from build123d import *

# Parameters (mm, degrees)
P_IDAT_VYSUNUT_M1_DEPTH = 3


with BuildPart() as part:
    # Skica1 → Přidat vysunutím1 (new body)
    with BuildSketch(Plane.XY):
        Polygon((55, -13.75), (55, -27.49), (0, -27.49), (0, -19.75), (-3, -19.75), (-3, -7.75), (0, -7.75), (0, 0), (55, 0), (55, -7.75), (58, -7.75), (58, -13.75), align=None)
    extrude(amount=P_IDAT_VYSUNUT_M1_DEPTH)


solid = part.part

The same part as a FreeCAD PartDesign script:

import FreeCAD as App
import Part
import Sketcher

V = App.Vector


def add_polygon(sketch, points):
    """Adds a closed chain of lines whose ends are joined by coincident constraints."""
    first, n = sketch.GeometryCount, len(points)
    for a, b in zip(points, points[1:] + points[:1]):
        sketch.addGeometry(Part.LineSegment(App.Vector(*a, 0), App.Vector(*b, 0)), False)
    for i in range(n):
        sketch.addConstraint(Sketcher.Constraint("Coincident", first + i, 2, first + (i + 1) % n, 1))

doc = App.newDocument("Part")
params = doc.addObject("Spreadsheet::Sheet", "Params")
for row, (alias, value) in enumerate([
    ("sketch1_width", "3 mm"),
    ("sketch1_width2", "55 mm"),
    ("sketch1_height", "6 mm"),
    ("sketch1_height2", "12 mm"),
    ("sketch1_height3", "13.74 mm"),
    ("pad1_length", "3 mm"),
], start=1):
    params.set(f"A{row}", alias)
    params.set(f"B{row}", "=" + value)
    params.setAlias(f"B{row}", alias)

body = doc.addObject("PartDesign::Body", "Body")

# Sketch on XY plane
sketch1 = body.newObject("Sketcher::SketchObject", "Sketch")
sketch1.AttachmentSupport = (doc.getObject("XY_Plane"), [""])
sketch1.MapMode = "FlatFace"
add_polygon(sketch1, [(55, -27.5), (55, -13.8), (58, -13.8), (58, -7.8), (55, -7.8), (55, 0), (0, 0), (0, -7.8), (-3, -7.8), (-3, -19.8), (0, -19.8), (0, -27.5)])  # lines 0-11
sketch1.addConstraint([
    Sketcher.Constraint("Vertical", 0),
    Sketcher.Constraint("Horizontal", 1),
    Sketcher.Constraint("Vertical", 2),
    Sketcher.Constraint("Horizontal", 3),
    Sketcher.Constraint("Vertical", 4),
    Sketcher.Constraint("Horizontal", 5),
    Sketcher.Constraint("Vertical", 6),
    Sketcher.Constraint("Horizontal", 7),
    Sketcher.Constraint("Vertical", 8),
    Sketcher.Constraint("Horizontal", 9),
    Sketcher.Constraint("Vertical", 10),
    Sketcher.Constraint("Horizontal", 11),
    Sketcher.Constraint("Coincident", 5, 2, -1, 1),
    Sketcher.Constraint("PointOnObject", 9, 2, -2),
    Sketcher.Constraint("Horizontal", 3, 2, 6, 2),
    Sketcher.Constraint("Vertical", 0, 2, 3, 2),
    Sketcher.Constraint("Equal", 3, 7),
    Sketcher.Constraint("DistanceX", 1, 1, 1, 2, 3.0),
    Sketcher.Constraint("DistanceX", 5, 2, 5, 1, 55.0),
    Sketcher.Constraint("DistanceY", 2, 1, 2, 2, 6.0),
    Sketcher.Constraint("DistanceY", 8, 2, 8, 1, 12.0),
    Sketcher.Constraint("DistanceY", 0, 1, 0, 2, 13.74),
    Sketcher.Constraint("DistanceY", 4, 1, 4, 2, 7.75),
])
sketch1.setExpression("Constraints[29]", "Params.sketch1_width")
sketch1.setExpression("Constraints[30]", "Params.sketch1_width2")
sketch1.setExpression("Constraints[31]", "Params.sketch1_height")
sketch1.setExpression("Constraints[32]", "Params.sketch1_height2")
sketch1.setExpression("Constraints[33]", "Params.sketch1_height3")
pad1 = body.newObject("PartDesign::Pad", "Pad")
pad1.Profile = sketch1
pad1.setExpression("Length", "Params.pad1_length")

doc.recompute()
